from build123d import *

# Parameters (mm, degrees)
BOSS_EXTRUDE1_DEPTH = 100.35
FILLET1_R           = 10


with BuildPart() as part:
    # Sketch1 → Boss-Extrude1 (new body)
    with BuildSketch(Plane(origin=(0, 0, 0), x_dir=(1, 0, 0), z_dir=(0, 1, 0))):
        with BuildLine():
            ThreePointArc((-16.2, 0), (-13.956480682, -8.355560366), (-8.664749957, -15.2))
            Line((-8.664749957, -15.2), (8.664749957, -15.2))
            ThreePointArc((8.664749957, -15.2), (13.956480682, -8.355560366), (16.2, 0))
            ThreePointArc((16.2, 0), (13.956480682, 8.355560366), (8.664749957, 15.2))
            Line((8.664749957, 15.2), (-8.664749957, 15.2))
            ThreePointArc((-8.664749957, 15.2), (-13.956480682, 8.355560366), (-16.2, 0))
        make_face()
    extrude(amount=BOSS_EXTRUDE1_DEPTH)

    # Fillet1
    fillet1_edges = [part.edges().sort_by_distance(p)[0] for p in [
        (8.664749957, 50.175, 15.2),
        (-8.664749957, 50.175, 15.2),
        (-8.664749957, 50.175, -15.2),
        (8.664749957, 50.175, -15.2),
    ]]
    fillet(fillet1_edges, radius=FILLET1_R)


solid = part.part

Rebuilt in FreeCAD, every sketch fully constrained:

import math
import FreeCAD as App
import Part
import Sketcher

V = App.Vector
Q = App.Units.Quantity


def edges_at(feature, points):
    """Names of the edges that pass closest to the given points."""
    edges = feature.Shape.Edges
    near = lambda p: min(range(len(edges)), key=lambda i: edges[i].distToShape(Part.Vertex(*p))[0])
    return sorted({f"Edge{near(p) + 1}" for p in points})

doc = App.newDocument("Part")
params = doc.addObject("Spreadsheet::Sheet", "Params")
for row, (alias, value) in enumerate([
    ("sketch1_radius", "22 mm"),
    ("pad1_length", "100.35 mm"),
    ("fillet_radius", "10 mm"),
], start=1):
    params.set(f"A{row}", alias)
    params.set(f"B{row}", "=" + value)
    params.setAlias(f"B{row}", alias)

body = doc.addObject("PartDesign::Body", "Body")

sketch1 = body.newObject("Sketcher::SketchObject", "Sketch")
sketch1.AttachmentSupport = (doc.getObject("XZ_Plane"), [""])
sketch1.MapMode = "FlatFace"
sketch1.addGeometry(Part.ArcOfCircle(Part.Circle(V(5.754389, -1.415909, 0), V(0, 0, 1), 22), math.radians(130.951156), math.radians(176.309922)), False)
sketch1.addGeometry(Part.LineSegment(V(-8.66475, 15.2, 0), V(8.66475, 15.2, 0)), False)
sketch1.addGeometry(Part.ArcOfCircle(Part.Circle(V(-5.754389, -1.415909, 0), V(0, 0, 1), 22), math.radians(3.690078), math.radians(49.048844)), False)
sketch1.addGeometry(Part.ArcOfCircle(Part.Circle(V(-5.754389, 1.415909, 0), V(0, 0, 1), 22), math.radians(-49.048844), math.radians(-3.690078)), False)
sketch1.addGeometry(Part.LineSegment(V(8.66475, -15.2, 0), V(-8.66475, -15.2, 0)), False)
sketch1.addGeometry(Part.ArcOfCircle(Part.Circle(V(5.754389, 1.415909, 0), V(0, 0, 1), 22), math.radians(-176.309922), math.radians(-130.951156)), False)
sketch1.addConstraint(Sketcher.Constraint("Coincident", 0, 1, 1, 1))
sketch1.addConstraint(Sketcher.Constraint("Coincident", 1, 2, 2, 2))
sketch1.addConstraint(Sketcher.Constraint("Coincident", 2, 1, 3, 2))
sketch1.addConstraint(Sketcher.Constraint("Coincident", 3, 1, 4, 1))
sketch1.addConstraint(Sketcher.Constraint("Coincident", 4, 2, 5, 2))
sketch1.addConstraint(Sketcher.Constraint("Coincident", 5, 1, 0, 2))
sketch1.addConstraint(Sketcher.Constraint("Horizontal", 1))
sketch1.addConstraint(Sketcher.Constraint("Horizontal", 4))
sketch1.addConstraint(Sketcher.Constraint("Equal", 0, 2))
sketch1.addConstraint(Sketcher.Constraint("Equal", 2, 3))
sketch1.addConstraint(Sketcher.Constraint("Equal", 3, 5))
sketch1.addConstraint(Sketcher.Constraint("Symmetric", 0, 3, 3, 3, -1, 1))
sketch1.addConstraint(Sketcher.Constraint("Symmetric", 2, 3, 5, 3, -1, 1))
sketch1.addConstraint(Sketcher.Constraint("Symmetric", 0, 3, 2, 3, -2))
sketch1.addConstraint(Sketcher.Constraint("Vertical", 1, 2, 3, 1))
sketch1.addConstraint(Sketcher.Constraint("Radius", 0, Q("22 mm")))
sketch1.addConstraint(Sketcher.Constraint("DistanceY", -1, 1, 0, 1, Q("15.2 mm")))
sketch1.addConstraint(Sketcher.Constraint("DistanceX", -1, 1, 2, 1, Q("16.2 mm")))
sketch1.addConstraint(Sketcher.Constraint("DistanceX", 1, 1, 1, 2, Q("17.3295 mm")))
sketch1.setExpression("Constraints[15]", "Params.sketch1_radius")
pad1 = body.newObject("PartDesign::Pad", "Pad")
pad1.Profile = sketch1
pad1.setExpression("Length", "Params.pad1_length")
pad1.Reversed = True
doc.recompute()

fillet = body.newObject("PartDesign::Fillet", "Fillet")
fillet.Base = (pad1, edges_at(pad1, [
    (8.665, 50.175, 15.2),
    (-8.665, 50.175, 15.2),
    (-8.665, 50.175, -15.2),
    (8.665, 50.175, -15.2),
]))
fillet.setExpression("Radius", "Params.fillet_radius")

doc.recompute()
